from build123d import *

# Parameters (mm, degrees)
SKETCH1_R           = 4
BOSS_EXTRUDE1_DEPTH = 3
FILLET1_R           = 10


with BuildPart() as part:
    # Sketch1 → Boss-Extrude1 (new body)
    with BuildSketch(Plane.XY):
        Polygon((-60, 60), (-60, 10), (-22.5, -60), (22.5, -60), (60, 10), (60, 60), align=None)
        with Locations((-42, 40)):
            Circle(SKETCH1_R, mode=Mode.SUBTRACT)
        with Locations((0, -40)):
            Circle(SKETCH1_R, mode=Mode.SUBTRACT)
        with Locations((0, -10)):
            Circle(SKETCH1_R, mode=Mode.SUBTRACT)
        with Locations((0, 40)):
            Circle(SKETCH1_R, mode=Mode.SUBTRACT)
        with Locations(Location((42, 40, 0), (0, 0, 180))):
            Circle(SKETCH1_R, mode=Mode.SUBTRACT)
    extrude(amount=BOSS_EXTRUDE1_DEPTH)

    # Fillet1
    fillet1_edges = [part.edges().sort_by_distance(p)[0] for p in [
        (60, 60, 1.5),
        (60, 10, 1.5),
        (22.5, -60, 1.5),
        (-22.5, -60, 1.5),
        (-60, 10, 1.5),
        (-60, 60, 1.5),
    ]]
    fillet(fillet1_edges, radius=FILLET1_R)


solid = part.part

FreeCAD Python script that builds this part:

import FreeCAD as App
import Part
import Sketcher


def edges_at(feature, points):
    """Names of the edges that pass closest to the given points."""
    edges = feature.Shape.Edges
    near = lambda p: min(range(len(edges)), key=lambda i: edges[i].distToShape(Part.Vertex(*p))[0])
    return sorted({f"Edge{near(p) + 1}" for p in points})


def add_polygon(sketch, points):
    """Adds a closed chain of lines whose ends are joined by coincident constraints."""
    first, n = sketch.GeometryCount, len(points)
    for a, b in zip(points, points[1:] + points[:1]):
        sketch.addGeometry(Part.LineSegment(App.Vector(*a, 0), App.Vector(*b, 0)), False)
    for i in range(n):
        sketch.addConstraint(Sketcher.Constraint("Coincident", first + i, 2, first + (i + 1) % n, 1))

doc = App.newDocument("Part")
params = doc.addObject("Spreadsheet::Sheet", "Params")
for row, (alias, value) in enumerate([
    ("sketch1_diameter", "8 mm"),
    ("sketch1_width", "45 mm"),
    ("sketch1_width2", "120 mm"),
    ("sketch1_height", "50 mm"),
    ("pad1_length", "3 mm"),
    ("fillet_radius", "10 mm"),
], start=1):
    params.set(f"A{row}", alias)
    params.set(f"B{row}", "=" + value)
    params.setAlias(f"B{row}", alias)

body = doc.addObject("PartDesign::Body", "Body")

# Sketch on XY plane
sketch1 = doc.addObject("Sketcher::SketchObject", "Sketch")
body.addObject(sketch1)
sketch1.AttachmentSupport = (doc.XY_Plane, [""])
sketch1.MapMode = "FlatFace"
add_polygon(sketch1, [(-60, 60), (-60, 10), (-22.5, -60), (22.5, -60), (60, 10), (60, 60)])  # lines 0-5
sketch1.addGeometry(Part.Circle(App.Vector(0, -40, 0), App.Vector(0, 0, 1), 4), False)  # 6
sketch1.addGeometry(Part.Circle(App.Vector(0, -10, 0), App.Vector(0, 0, 1), 4), False)  # 7
sketch1.addGeometry(Part.Circle(App.Vector(-42, 40, 0), App.Vector(0, 0, 1), 4), False)  # 8
sketch1.addGeometry(Part.Circle(App.Vector(0, 40, 0), App.Vector(0, 0, 1), 4), False)  # 9
sketch1.addGeometry(Part.Circle(App.Vector(42, 40, 0), App.Vector(0, 0, 1), 4), False)  # 10
sketch1.addConstraint([
    Sketcher.Constraint("Vertical", 0),
    Sketcher.Constraint("Horizontal", 2),
    Sketcher.Constraint("Vertical", 4),
    Sketcher.Constraint("Horizontal", 5),
    Sketcher.Constraint("Equal", 6, 7),
    Sketcher.Constraint("Equal", 7, 8),
    Sketcher.Constraint("Equal", 8, 9),
    Sketcher.Constraint("Equal", 9, 10),
    Sketcher.Constraint("Symmetric", 6, 3, 9, 3, -1, 1),
    Sketcher.Constraint("Symmetric", 8, 3, 10, 3, -2),
    Sketcher.Constraint("Symmetric", 0, 2, 3, 2, -2),
    Sketcher.Constraint("PointOnObject", 6, 3, -2),
    Sketcher.Constraint("PointOnObject", 7, 3, -2),
    Sketcher.Constraint("Horizontal", 8, 3, 9, 3),
    Sketcher.Constraint("Equal", 1, 3),
    Sketcher.Constraint("Diameter", 6, 8.0),
    Sketcher.Constraint("DistanceX", 2, 1, 2, 2, 45.0),
    Sketcher.Constraint("DistanceX", 5, 2, 5, 1, 120.0),
    Sketcher.Constraint("DistanceY", 0, 2, 0, 1, 50.0),
    Sketcher.Constraint("DistanceY", 6, 3, -1, 1, 40.0),
    Sketcher.Constraint("DistanceY", 7, 3, -1, 1, 10.0),
    Sketcher.Constraint("DistanceX", 8, 3, -1, 1, 42.0),
    Sketcher.Constraint("DistanceY", -1, 1, 0, 2, 10.0),
    Sketcher.Constraint("DistanceY", 1, 2, -1, 1, 60.0),
])
sketch1.setExpression("Constraints[21]", "Params.sketch1_diameter")
sketch1.setExpression("Constraints[22]", "Params.sketch1_width")
sketch1.setExpression("Constraints[23]", "Params.sketch1_width2")
sketch1.setExpression("Constraints[24]", "Params.sketch1_height")
pad1 = doc.addObject("PartDesign::Pad", "Pad")
body.addObject(pad1)
pad1.Profile = sketch1
pad1.setExpression("Length", "Params.pad1_length")
doc.recompute()

fillet = doc.addObject("PartDesign::Fillet", "Fillet")
body.addObject(fillet)
fillet.Base = (pad1, edges_at(pad1, [
    (60, 60, 1.5),
    (60, 10, 1.5),
    (22.5, -60, 1.5),
    (-22.5, -60, 1.5),
    (-60, 10, 1.5),
    (-60, 60, 1.5),
]))
fillet.setExpression("Radius", "Params.fillet_radius")

doc.recompute()
